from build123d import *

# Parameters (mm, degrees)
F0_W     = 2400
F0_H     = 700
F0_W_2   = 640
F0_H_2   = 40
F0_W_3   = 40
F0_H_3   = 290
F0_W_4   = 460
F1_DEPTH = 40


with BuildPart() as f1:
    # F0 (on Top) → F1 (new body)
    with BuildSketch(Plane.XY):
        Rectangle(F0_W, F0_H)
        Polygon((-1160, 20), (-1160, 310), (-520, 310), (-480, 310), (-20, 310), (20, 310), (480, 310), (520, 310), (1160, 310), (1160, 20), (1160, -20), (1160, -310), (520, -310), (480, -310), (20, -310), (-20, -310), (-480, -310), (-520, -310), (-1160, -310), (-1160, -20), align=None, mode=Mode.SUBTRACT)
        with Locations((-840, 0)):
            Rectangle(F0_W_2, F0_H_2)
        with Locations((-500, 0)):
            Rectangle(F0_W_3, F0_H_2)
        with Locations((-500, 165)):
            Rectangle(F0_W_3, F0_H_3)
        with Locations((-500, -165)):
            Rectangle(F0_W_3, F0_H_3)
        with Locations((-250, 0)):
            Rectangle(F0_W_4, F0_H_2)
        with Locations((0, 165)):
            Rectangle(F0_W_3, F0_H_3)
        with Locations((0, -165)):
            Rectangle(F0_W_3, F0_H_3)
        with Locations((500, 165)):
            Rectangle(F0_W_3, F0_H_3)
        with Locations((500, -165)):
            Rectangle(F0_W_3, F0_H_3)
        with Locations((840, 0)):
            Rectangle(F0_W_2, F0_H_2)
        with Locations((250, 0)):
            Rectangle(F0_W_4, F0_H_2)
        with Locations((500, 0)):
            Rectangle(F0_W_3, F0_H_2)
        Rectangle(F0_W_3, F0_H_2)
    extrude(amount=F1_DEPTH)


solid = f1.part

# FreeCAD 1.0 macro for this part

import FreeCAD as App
import Part
import Sketcher
Q = App.Units.Quantity


def add_polygon(sketch, points):
    """Adds a closed chain of lines whose ends are joined by coincident constraints."""
    first, n = sketch.GeometryCount, len(points)
    for a, b in zip(points, points[1:] + points[:1]):
        sketch.addGeometry(Part.LineSegment(App.Vector(*a, 0), App.Vector(*b, 0)), False)
    for i in range(n):
        sketch.addConstraint(Sketcher.Constraint("Coincident", first + i, 2, first + (i + 1) % n, 1))

doc = App.newDocument("Part")
body = doc.addObject("PartDesign::Body", "Body")

# Sketch on XY plane
sketch1 = body.newObject("Sketcher::SketchObject", "Sketch")
sketch1.AttachmentSupport = (doc.getObject("XY_Plane"), [""])
sketch1.MapMode = "FlatFace"
add_polygon(sketch1, [(-1200, 350), (-1200, -350), (1200, -350), (1200, 350)])  # lines 0-3
add_polygon(sketch1, [(-1160, -310), (-1160, -20), (-520, -20), (-520, -310)])  # lines 4-7
add_polygon(sketch1, [(-480, -20), (-20, -20), (-20, -310), (-480, -310)])  # lines 8-11
add_polygon(sketch1, [(20, -310), (20, -20), (480, -20), (480, -310)])  # lines 12-15
add_polygon(sketch1, [(520, -310), (520, -20), (1160, -20), (1160, -310)])  # lines 16-19
add_polygon(sketch1, [(-520, 20), (-1160, 20), (-1160, 310), (-520, 310)])  # lines 20-23
add_polygon(sketch1, [(-20, 310), (-20, 20), (-480, 20), (-480, 310)])  # lines 24-27
add_polygon(sketch1, [(480, 20), (20, 20), (20, 310), (480, 310)])  # lines 28-31
add_polygon(sketch1, [(1160, 20), (520, 20), (520, 310), (1160, 310)])  # lines 32-35
sketch1.addConstraint(Sketcher.Constraint("Vertical", 0))
sketch1.addConstraint(Sketcher.Constraint("Horizontal", 1))
sketch1.addConstraint(Sketcher.Constraint("Vertical", 2))
sketch1.addConstraint(Sketcher.Constraint("Horizontal", 3))
sketch1.addConstraint(Sketcher.Constraint("Vertical", 4))
sketch1.addConstraint(Sketcher.Constraint("Horizontal", 5))
sketch1.addConstraint(Sketcher.Constraint("Vertical", 6))
sketch1.addConstraint(Sketcher.Constraint("Horizontal", 7))
sketch1.addConstraint(Sketcher.Constraint("Horizontal", 8))
sketch1.addConstraint(Sketcher.Constraint("Vertical", 9))
sketch1.addConstraint(Sketcher.Constraint("Horizontal", 10))
sketch1.addConstraint(Sketcher.Constraint("Vertical", 11))
sketch1.addConstraint(Sketcher.Constraint("Vertical", 12))
sketch1.addConstraint(Sketcher.Constraint("Horizontal", 13))
sketch1.addConstraint(Sketcher.Constraint("Vertical", 14))
sketch1.addConstraint(Sketcher.Constraint("Horizontal", 15))
sketch1.addConstraint(Sketcher.Constraint("Vertical", 16))
sketch1.addConstraint(Sketcher.Constraint("Horizontal", 17))
sketch1.addConstraint(Sketcher.Constraint("Vertical", 18))
sketch1.addConstraint(Sketcher.Constraint("Horizontal", 19))
sketch1.addConstraint(Sketcher.Constraint("Horizontal", 20))
sketch1.addConstraint(Sketcher.Constraint("Vertical", 21))
sketch1.addConstraint(Sketcher.Constraint("Horizontal", 22))
sketch1.addConstraint(Sketcher.Constraint("Vertical", 23))
sketch1.addConstraint(Sketcher.Constraint("Vertical", 24))
sketch1.addConstraint(Sketcher.Constraint("Horizontal", 25))
sketch1.addConstraint(Sketcher.Constraint("Vertical", 26))
sketch1.addConstraint(Sketcher.Constraint("Horizontal", 27))
sketch1.addConstraint(Sketcher.Constraint("Horizontal", 28))
sketch1.addConstraint(Sketcher.Constraint("Vertical", 29))
sketch1.addConstraint(Sketcher.Constraint("Horizontal", 30))
sketch1.addConstraint(Sketcher.Constraint("Vertical", 31))
sketch1.addConstraint(Sketcher.Constraint("Horizontal", 32))
sketch1.addConstraint(Sketcher.Constraint("Vertical", 33))
sketch1.addConstraint(Sketcher.Constraint("Horizontal", 34))
sketch1.addConstraint(Sketcher.Constraint("Vertical", 35))
sketch1.addConstraint(Sketcher.Constraint("Symmetric", 0, 2, 2, 2, -1, 1))
sketch1.addConstraint(Sketcher.Constraint("Symmetric", 17, 2, 20, 2, -1, 1))
sketch1.addConstraint(Sketcher.Constraint("Symmetric", 19, 2, 22, 2, -1, 1))
sketch1.addConstraint(Sketcher.Constraint("Symmetric", 12, 2, 24, 2, -1, 1))
sketch1.addConstraint(Sketcher.Constraint("Symmetric", 14, 2, 26, 2, -1, 1))
sketch1.addConstraint(Sketcher.Constraint("Symmetric", 8, 2, 28, 2, -1, 1))
sketch1.addConstraint(Sketcher.Constraint("Symmetric", 10, 2, 30, 2, -1, 1))
sketch1.addConstraint(Sketcher.Constraint("Symmetric", 5, 2, 32, 2, -1, 1))
sketch1.addConstraint(Sketcher.Constraint("Symmetric", 7, 2, 34, 2, -1, 1))
sketch1.addConstraint(Sketcher.Constraint("Symmetric", 8, 2, 12, 2, -2))
sketch1.addConstraint(Sketcher.Constraint("Symmetric", 10, 2, 14, 2, -2))
sketch1.addConstraint(Sketcher.Constraint("Symmetric", 5, 2, 16, 2, -2))
sketch1.addConstraint(Sketcher.Constraint("Symmetric", 7, 2, 18, 2, -2))
sketch1.addConstraint(Sketcher.Constraint("Horizontal", 5, 2, 8, 2))
sketch1.addConstraint(Sketcher.Constraint("Horizontal", 7, 2, 9, 2))
sketch1.addConstraint(Sketcher.Constraint("DistanceX", 1, 1, 1, 2, Q("2400 mm")))
sketch1.addConstraint(Sketcher.Constraint("DistanceX", 5, 1, 5, 2, Q("640 mm")))
sketch1.addConstraint(Sketcher.Constraint("DistanceX", 8, 1, 8, 2, Q("460 mm")))
sketch1.addConstraint(Sketcher.Constraint("DistanceY", 0, 2, 0, 1, Q("700 mm")))
sketch1.addConstraint(Sketcher.Constraint("DistanceY", 4, 1, 4, 2, Q("290 mm")))
sketch1.addConstraint(Sketcher.Constraint("DistanceX", 4, 2, -1, 1, Q("1160 mm")))
sketch1.addConstraint(Sketcher.Constraint("DistanceY", 4, 2, -1, 1, Q("20 mm")))
sketch1.addConstraint(Sketcher.Constraint("DistanceX", 8, 2, -1, 1, Q("20 mm")))
pad1 = body.newObject("PartDesign::Pad", "Pad")
pad1.Profile = sketch1
pad1.Length = 40

doc.recompute()
